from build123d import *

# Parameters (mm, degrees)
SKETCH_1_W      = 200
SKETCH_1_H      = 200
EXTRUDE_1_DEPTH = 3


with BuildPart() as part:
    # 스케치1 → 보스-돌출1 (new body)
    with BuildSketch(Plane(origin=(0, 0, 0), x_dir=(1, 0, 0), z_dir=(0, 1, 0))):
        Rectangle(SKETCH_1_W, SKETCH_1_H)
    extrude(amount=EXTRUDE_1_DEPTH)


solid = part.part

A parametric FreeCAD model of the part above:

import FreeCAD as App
import Part
import Sketcher
Q = App.Units.Quantity

doc = App.newDocument("Part")
body = doc.addObject("PartDesign::Body", "Body")

# Sketch on XZ plane
sketch1 = body.newObject("Sketcher::SketchObject", "Sketch")
sketch1.AttachmentSupport = (doc.getObject("XZ_Plane"), [""])
sketch1.MapMode = "FlatFace"
sketch1.addGeometry(Part.LineSegment(App.Vector(-100, -100, 0), App.Vector(-100, 100, 0)), False)
sketch1.addGeometry(Part.LineSegment(App.Vector(-100, 100, 0), App.Vector(100, 100, 0)), False)
sketch1.addGeometry(Part.LineSegment(App.Vector(100, 100, 0), App.Vector(100, -100, 0)), False)
sketch1.addGeometry(Part.LineSegment(App.Vector(100, -100, 0), App.Vector(-100, -100, 0)), False)
sketch1.addConstraint(Sketcher.Constraint("Coincident", 0, 2, 1, 1))
sketch1.addConstraint(Sketcher.Constraint("Coincident", 1, 2, 2, 1))
sketch1.addConstraint(Sketcher.Constraint("Coincident", 2, 2, 3, 1))
sketch1.addConstraint(Sketcher.Constraint("Coincident", 3, 2, 0, 1))
sketch1.addConstraint(Sketcher.Constraint("Vertical", 0))
sketch1.addConstraint(Sketcher.Constraint("Horizontal", 1))
sketch1.addConstraint(Sketcher.Constraint("Vertical", 2))
sketch1.addConstraint(Sketcher.Constraint("Horizontal", 3))
sketch1.addConstraint(Sketcher.Constraint("Symmetric", 0, 2, 2, 2, -1, 1))
sketch1.addConstraint(Sketcher.Constraint("Equal", 3, 0))
sketch1.addConstraint(Sketcher.Constraint("DistanceX", 1, 1, 1, 2, Q("200 mm")))
pad1 = body.newObject("PartDesign::Pad", "Pad")
pad1.Profile = sketch1
pad1.Length = 3
pad1.Reversed = True

doc.recompute()
